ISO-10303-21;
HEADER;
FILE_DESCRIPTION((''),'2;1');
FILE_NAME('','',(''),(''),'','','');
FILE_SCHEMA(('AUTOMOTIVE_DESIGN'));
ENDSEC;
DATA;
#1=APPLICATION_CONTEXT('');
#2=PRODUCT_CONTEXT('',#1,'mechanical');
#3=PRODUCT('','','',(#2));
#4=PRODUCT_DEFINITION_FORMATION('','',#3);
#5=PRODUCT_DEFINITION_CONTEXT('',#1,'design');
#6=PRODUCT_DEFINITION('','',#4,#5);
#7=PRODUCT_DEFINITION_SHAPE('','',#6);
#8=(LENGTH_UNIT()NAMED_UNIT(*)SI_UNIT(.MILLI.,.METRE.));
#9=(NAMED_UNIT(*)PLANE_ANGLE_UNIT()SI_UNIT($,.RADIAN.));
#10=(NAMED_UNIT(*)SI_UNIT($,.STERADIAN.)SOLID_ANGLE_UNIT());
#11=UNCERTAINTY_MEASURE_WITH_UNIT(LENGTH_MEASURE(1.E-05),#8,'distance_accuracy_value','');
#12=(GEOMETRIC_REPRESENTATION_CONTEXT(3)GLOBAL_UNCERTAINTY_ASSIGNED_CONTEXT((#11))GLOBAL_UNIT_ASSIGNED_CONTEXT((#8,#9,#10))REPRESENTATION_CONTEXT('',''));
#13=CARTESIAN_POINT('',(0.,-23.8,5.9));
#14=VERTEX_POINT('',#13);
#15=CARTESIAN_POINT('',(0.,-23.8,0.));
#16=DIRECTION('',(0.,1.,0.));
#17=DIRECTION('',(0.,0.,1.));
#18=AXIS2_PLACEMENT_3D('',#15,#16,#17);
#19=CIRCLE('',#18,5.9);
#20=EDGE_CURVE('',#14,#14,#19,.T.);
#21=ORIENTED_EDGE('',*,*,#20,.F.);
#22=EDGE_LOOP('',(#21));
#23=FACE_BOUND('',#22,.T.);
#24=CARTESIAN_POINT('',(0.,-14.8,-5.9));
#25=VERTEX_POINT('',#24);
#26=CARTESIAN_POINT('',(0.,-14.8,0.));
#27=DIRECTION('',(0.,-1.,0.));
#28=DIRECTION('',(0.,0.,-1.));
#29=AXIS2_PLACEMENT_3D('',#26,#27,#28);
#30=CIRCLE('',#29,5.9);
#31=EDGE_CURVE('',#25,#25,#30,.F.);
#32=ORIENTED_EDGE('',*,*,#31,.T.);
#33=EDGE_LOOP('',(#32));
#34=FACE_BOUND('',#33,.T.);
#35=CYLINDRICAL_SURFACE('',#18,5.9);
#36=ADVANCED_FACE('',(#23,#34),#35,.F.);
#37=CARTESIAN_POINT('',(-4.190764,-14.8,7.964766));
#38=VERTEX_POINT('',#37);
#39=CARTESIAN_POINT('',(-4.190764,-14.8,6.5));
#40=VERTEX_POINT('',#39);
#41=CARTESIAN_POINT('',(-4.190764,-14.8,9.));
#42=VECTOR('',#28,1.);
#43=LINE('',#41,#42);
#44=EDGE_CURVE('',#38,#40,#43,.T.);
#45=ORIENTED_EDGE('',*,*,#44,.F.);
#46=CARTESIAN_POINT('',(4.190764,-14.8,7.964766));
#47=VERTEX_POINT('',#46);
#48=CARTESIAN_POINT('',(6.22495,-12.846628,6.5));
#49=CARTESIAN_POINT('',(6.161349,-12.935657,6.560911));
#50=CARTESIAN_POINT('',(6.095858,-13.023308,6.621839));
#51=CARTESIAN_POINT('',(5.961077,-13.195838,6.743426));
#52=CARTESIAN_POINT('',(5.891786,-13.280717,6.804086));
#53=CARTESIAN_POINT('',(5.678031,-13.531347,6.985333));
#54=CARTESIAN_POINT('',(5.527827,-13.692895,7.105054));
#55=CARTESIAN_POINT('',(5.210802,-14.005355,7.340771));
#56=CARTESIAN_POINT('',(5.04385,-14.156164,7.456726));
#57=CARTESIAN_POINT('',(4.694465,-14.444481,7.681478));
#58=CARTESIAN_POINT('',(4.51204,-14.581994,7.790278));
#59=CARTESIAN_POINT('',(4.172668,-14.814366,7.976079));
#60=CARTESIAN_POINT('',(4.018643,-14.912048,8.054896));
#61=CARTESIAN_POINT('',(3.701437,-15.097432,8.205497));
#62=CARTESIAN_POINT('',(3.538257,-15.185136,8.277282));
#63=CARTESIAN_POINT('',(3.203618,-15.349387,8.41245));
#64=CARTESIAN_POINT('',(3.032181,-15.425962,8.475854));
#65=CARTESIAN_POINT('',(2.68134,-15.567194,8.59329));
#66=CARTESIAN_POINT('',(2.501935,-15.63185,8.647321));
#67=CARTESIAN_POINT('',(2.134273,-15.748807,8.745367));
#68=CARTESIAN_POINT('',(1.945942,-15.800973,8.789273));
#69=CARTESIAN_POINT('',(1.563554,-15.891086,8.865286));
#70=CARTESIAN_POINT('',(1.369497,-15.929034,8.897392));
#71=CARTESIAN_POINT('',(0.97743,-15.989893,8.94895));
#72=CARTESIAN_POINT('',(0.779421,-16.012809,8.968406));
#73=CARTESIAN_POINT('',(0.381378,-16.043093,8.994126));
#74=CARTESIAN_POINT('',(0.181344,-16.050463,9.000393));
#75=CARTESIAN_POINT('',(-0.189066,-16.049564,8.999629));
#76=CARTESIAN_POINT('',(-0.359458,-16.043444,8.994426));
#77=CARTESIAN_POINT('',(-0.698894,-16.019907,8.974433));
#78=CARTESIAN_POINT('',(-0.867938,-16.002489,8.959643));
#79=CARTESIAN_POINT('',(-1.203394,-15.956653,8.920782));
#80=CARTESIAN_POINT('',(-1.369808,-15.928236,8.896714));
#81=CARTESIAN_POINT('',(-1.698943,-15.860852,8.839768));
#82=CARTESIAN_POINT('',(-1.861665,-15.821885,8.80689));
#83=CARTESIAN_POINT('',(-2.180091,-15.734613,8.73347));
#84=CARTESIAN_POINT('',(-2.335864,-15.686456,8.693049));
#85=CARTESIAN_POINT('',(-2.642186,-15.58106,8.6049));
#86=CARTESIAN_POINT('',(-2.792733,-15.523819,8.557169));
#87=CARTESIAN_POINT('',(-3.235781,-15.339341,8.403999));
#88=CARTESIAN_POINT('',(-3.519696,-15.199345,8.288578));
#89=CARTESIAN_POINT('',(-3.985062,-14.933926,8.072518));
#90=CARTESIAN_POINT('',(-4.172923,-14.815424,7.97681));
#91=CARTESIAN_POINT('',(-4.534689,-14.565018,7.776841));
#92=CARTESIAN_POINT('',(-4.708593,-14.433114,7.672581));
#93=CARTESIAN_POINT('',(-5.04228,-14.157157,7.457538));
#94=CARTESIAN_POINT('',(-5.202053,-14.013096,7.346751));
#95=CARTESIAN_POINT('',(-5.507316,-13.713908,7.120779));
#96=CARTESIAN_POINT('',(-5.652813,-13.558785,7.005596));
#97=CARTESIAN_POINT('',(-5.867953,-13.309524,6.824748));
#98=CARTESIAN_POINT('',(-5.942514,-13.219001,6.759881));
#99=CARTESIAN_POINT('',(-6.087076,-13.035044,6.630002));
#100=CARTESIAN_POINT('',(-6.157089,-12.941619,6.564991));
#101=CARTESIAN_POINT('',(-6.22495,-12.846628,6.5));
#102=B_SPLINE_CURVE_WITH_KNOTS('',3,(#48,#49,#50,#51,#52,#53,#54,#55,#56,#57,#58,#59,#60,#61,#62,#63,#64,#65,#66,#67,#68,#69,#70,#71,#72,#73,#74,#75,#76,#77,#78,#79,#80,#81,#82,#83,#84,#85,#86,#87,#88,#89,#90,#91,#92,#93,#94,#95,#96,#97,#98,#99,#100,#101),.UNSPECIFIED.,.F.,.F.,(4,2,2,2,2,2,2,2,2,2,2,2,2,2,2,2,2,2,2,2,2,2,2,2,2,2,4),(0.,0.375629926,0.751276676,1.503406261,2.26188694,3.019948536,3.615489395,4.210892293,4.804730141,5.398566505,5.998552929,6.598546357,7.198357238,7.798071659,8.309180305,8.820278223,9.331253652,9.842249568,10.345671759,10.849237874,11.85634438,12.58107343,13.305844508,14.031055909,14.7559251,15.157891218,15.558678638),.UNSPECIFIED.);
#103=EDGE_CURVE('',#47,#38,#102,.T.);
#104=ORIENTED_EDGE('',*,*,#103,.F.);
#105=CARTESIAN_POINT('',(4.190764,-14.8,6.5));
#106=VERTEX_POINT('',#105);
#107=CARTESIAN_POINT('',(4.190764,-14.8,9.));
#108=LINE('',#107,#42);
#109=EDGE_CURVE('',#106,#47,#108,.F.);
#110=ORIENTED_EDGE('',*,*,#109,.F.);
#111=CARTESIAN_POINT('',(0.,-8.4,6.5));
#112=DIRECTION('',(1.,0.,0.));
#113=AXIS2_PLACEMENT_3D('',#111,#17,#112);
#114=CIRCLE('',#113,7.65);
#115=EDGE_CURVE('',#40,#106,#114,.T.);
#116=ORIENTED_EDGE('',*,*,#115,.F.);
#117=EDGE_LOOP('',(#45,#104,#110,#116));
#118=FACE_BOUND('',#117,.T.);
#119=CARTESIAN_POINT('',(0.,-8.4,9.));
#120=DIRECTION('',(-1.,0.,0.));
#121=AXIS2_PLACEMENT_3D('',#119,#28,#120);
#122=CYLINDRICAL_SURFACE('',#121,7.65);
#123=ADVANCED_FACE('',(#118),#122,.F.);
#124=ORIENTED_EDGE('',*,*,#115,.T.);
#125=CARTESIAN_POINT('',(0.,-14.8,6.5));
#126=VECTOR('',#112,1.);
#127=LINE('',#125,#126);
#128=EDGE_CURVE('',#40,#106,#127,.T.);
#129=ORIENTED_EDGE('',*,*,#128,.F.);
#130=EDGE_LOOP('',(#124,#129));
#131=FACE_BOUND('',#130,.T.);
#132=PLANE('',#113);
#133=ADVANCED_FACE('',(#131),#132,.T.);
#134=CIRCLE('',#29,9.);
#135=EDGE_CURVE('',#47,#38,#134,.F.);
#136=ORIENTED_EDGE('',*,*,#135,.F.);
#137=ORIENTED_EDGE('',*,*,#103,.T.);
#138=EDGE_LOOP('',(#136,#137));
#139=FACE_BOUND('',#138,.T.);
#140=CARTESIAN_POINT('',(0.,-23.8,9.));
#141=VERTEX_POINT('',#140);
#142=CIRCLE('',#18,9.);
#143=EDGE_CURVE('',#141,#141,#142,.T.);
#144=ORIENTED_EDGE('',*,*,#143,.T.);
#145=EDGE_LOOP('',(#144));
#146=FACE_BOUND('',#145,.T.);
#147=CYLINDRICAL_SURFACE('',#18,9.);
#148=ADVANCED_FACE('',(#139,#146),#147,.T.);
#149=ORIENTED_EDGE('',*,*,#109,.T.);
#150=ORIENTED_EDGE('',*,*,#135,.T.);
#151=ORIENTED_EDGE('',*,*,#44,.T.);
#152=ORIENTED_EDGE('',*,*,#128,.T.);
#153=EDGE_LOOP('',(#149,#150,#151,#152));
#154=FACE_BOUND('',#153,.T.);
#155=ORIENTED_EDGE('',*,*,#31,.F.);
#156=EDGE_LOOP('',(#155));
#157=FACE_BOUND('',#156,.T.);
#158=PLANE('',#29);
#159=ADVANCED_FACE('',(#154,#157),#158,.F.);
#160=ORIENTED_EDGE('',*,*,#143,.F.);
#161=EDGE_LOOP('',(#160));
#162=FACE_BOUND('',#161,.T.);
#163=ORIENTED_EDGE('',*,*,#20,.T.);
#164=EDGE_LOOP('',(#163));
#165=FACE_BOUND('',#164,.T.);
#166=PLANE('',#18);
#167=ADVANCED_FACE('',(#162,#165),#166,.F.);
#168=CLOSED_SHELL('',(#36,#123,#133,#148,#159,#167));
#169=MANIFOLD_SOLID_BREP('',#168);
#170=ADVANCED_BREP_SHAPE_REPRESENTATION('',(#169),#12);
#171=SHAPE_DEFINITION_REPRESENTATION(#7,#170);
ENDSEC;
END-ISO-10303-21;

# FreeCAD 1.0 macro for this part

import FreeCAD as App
import Part
import Sketcher

V = App.Vector
Q = App.Units.Quantity

doc = App.newDocument("Part")
body = doc.addObject("PartDesign::Body", "Body")

# Sketch on XZ plane
sketch1 = body.newObject("Sketcher::SketchObject", "Sketch")
sketch1.AttachmentSupport = (doc.getObject("XZ_Plane"), [""])
sketch1.MapMode = "FlatFace"
sketch1.addGeometry([
    Part.Circle(V(0, 0, 0), V(0, 0, 1), 9),
    Part.Circle(V(0, 0, 0), V(0, 0, 1), 6),
], False)
sketch1.addConstraint([
    Sketcher.Constraint("Coincident", 0, 3, -1, 1),
    Sketcher.Constraint("Coincident", 1, 3, -1, 1),
    Sketcher.Constraint("Diameter", 0, Q("18 mm")),
    Sketcher.Constraint("Diameter", 1, Q("11.8 mm")),
])
pad1 = body.newObject("PartDesign::Pad", "Pad")
pad1.Profile = sketch1
pad1.Length = 23.8

# Sketch on XY plane
sketch2 = body.newObject("Sketcher::SketchObject", "Sketch001")
sketch2.AttachmentSupport = (doc.getObject("XY_Plane"), [""])
sketch2.MapMode = "FlatFace"
sketch2.AttachmentOffset = App.Placement(V(0, 0, 6.5), App.Rotation())
sketch2.addGeometry(Part.Circle(V(0, -8, 0), V(0, 0, 1), 8), False)
sketch2.addConstraint([
    Sketcher.Constraint("PointOnObject", 0, 3, -2),
    Sketcher.Constraint("Diameter", 0, Q("15.3 mm")),
    Sketcher.Constraint("DistanceY", 0, 3, -1, 1, Q("8.4 mm")),
])
pocket1 = body.newObject("PartDesign::Pocket", "Pocket")
pocket1.Profile = sketch2
pocket1.Type = "ThroughAll"
pocket1.Reversed = True

# Sketch on XY plane
sketch3 = body.newObject("Sketcher::SketchObject", "Sketch002")
sketch3.AttachmentSupport = (doc.getObject("XY_Plane"), [""])
sketch3.MapMode = "FlatFace"
sketch3.AttachmentOffset = App.Placement(V(0, 0, 6.5), App.Rotation())
sketch3.addGeometry(Part.Circle(V(0, -8, 0), V(0, 0, 1), 6), False)
sketch3.addConstraint([
    Sketcher.Constraint("Diameter", 0, Q("11 mm")),
    Sketcher.Constraint("DistanceY", 0, 3, -1, 1, Q("8.4 mm")),
    Sketcher.Constraint("DistanceX", -1, 1, 0, 3, Q("0.145476 mm")),
])
pocket2 = body.newObject("PartDesign::Pocket", "Pocket001")
pocket2.Profile = sketch3
pocket2.Type = "TwoLengths"
pocket2.Length = 30.794127
pocket2.Length2 = 7
pocket2.Reversed = True

# Sketch on XZ plane
sketch4 = body.newObject("Sketcher::SketchObject", "Sketch003")
sketch4.AttachmentSupport = (doc.getObject("XZ_Plane"), [""])
sketch4.MapMode = "FlatFace"
sketch4.AttachmentOffset = App.Placement(V(0, 0, 14.8), App.Rotation())
sketch4.addGeometry(Part.Circle(V(0, 0, 0), V(0, 0, 1), 13), False)
sketch4.addConstraint([
    Sketcher.Constraint("Coincident", 0, 3, -1, 1),
    Sketcher.Constraint("Diameter", 0, Q("26.968627 mm")),
])
pocket3 = body.newObject("PartDesign::Pocket", "Pocket002")
pocket3.Profile = sketch4
pocket3.Type = "ThroughAll"

doc.recompute()
